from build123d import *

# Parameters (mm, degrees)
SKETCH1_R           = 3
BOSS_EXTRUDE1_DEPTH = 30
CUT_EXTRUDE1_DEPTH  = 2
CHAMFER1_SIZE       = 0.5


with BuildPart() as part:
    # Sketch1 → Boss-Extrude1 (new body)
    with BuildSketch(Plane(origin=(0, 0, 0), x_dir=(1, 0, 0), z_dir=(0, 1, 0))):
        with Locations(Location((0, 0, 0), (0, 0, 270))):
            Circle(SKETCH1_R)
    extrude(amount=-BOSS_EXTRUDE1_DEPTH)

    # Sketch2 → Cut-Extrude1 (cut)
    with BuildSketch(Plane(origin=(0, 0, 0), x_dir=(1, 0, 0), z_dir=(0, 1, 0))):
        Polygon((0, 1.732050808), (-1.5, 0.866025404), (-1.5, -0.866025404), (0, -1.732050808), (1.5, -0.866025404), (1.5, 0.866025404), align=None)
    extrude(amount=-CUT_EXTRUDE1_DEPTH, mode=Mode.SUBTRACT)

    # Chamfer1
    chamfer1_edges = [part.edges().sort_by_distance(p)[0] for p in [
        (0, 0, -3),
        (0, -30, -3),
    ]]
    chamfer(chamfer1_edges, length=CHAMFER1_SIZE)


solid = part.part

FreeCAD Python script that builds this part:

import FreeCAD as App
import Part
import Sketcher
Q = App.Units.Quantity


def edges_at(feature, points):
    """Names of the edges that pass closest to the given points."""
    edges = feature.Shape.Edges
    near = lambda p: min(range(len(edges)), key=lambda i: edges[i].distToShape(Part.Vertex(*p))[0])
    return sorted({f"Edge{near(p) + 1}" for p in points})


def add_polygon(sketch, points):
    """Adds a closed chain of lines whose ends are joined by coincident constraints."""
    first, n = sketch.GeometryCount, len(points)
    for a, b in zip(points, points[1:] + points[:1]):
        sketch.addGeometry(Part.LineSegment(App.Vector(*a, 0), App.Vector(*b, 0)), False)
    for i in range(n):
        sketch.addConstraint(Sketcher.Constraint("Coincident", first + i, 2, first + (i + 1) % n, 1))

doc = App.newDocument("Part")
body = doc.addObject("PartDesign::Body", "Body")

# Sketch on XZ plane
sketch1 = body.newObject("Sketcher::SketchObject", "Sketch")
sketch1.AttachmentSupport = (doc.getObject("XZ_Plane"), [""])
sketch1.MapMode = "FlatFace"
sketch1.addGeometry(Part.Circle(App.Vector(0, 0, 0), App.Vector(0, 0, 1), 3), False)
sketch1.addConstraint(Sketcher.Constraint("Coincident", 0, 3, -1, 1))
sketch1.addConstraint(Sketcher.Constraint("Diameter", 0, Q("6 mm")))
pad1 = body.newObject("PartDesign::Pad", "Pad")
pad1.Profile = sketch1
pad1.Length = 30

# Sketch on XZ plane
sketch2 = body.newObject("Sketcher::SketchObject", "Sketch001")
sketch2.AttachmentSupport = (doc.getObject("XZ_Plane"), [""])
sketch2.MapMode = "FlatFace"
add_polygon(sketch2, [(0, -1.7), (-1.5, -0.9), (-1.5, 0.9), (0, 1.7), (1.5, 0.9), (1.5, -0.9)])  # lines 0-5
sketch2.addConstraint(Sketcher.Constraint("Vertical", 1))
sketch2.addConstraint(Sketcher.Constraint("Vertical", 4))
sketch2.addConstraint(Sketcher.Constraint("Symmetric", 0, 2, 3, 2, -1, 1))
sketch2.addConstraint(Sketcher.Constraint("Symmetric", 2, 2, 5, 2, -1, 1))
sketch2.addConstraint(Sketcher.Constraint("PointOnObject", 2, 2, -2))
sketch2.addConstraint(Sketcher.Constraint("Parallel", 2, 5))
sketch2.addConstraint(Sketcher.Constraint("Horizontal", 1, 2, 3, 2))
sketch2.addConstraint(Sketcher.Constraint("Angle", 0, Q("150 deg")))
sketch2.addConstraint(Sketcher.Constraint("DistanceX", 1, 2, 3, 2, Q("3 mm")))
sketch2.addConstraint(Sketcher.Constraint("DistanceY", 1, 1, 1, 2, Q("1.732051 mm")))
pocket1 = body.newObject("PartDesign::Pocket", "Pocket")
pocket1.Profile = sketch2
pocket1.Length = 2
pocket1.Reversed = True
doc.recompute()

chamfer = body.newObject("PartDesign::Chamfer", "Chamfer")
chamfer.Base = (pocket1, edges_at(pocket1, [(0, 0, -3), (0, -30, -3)]))
chamfer.Size = 0.5

doc.recompute()
